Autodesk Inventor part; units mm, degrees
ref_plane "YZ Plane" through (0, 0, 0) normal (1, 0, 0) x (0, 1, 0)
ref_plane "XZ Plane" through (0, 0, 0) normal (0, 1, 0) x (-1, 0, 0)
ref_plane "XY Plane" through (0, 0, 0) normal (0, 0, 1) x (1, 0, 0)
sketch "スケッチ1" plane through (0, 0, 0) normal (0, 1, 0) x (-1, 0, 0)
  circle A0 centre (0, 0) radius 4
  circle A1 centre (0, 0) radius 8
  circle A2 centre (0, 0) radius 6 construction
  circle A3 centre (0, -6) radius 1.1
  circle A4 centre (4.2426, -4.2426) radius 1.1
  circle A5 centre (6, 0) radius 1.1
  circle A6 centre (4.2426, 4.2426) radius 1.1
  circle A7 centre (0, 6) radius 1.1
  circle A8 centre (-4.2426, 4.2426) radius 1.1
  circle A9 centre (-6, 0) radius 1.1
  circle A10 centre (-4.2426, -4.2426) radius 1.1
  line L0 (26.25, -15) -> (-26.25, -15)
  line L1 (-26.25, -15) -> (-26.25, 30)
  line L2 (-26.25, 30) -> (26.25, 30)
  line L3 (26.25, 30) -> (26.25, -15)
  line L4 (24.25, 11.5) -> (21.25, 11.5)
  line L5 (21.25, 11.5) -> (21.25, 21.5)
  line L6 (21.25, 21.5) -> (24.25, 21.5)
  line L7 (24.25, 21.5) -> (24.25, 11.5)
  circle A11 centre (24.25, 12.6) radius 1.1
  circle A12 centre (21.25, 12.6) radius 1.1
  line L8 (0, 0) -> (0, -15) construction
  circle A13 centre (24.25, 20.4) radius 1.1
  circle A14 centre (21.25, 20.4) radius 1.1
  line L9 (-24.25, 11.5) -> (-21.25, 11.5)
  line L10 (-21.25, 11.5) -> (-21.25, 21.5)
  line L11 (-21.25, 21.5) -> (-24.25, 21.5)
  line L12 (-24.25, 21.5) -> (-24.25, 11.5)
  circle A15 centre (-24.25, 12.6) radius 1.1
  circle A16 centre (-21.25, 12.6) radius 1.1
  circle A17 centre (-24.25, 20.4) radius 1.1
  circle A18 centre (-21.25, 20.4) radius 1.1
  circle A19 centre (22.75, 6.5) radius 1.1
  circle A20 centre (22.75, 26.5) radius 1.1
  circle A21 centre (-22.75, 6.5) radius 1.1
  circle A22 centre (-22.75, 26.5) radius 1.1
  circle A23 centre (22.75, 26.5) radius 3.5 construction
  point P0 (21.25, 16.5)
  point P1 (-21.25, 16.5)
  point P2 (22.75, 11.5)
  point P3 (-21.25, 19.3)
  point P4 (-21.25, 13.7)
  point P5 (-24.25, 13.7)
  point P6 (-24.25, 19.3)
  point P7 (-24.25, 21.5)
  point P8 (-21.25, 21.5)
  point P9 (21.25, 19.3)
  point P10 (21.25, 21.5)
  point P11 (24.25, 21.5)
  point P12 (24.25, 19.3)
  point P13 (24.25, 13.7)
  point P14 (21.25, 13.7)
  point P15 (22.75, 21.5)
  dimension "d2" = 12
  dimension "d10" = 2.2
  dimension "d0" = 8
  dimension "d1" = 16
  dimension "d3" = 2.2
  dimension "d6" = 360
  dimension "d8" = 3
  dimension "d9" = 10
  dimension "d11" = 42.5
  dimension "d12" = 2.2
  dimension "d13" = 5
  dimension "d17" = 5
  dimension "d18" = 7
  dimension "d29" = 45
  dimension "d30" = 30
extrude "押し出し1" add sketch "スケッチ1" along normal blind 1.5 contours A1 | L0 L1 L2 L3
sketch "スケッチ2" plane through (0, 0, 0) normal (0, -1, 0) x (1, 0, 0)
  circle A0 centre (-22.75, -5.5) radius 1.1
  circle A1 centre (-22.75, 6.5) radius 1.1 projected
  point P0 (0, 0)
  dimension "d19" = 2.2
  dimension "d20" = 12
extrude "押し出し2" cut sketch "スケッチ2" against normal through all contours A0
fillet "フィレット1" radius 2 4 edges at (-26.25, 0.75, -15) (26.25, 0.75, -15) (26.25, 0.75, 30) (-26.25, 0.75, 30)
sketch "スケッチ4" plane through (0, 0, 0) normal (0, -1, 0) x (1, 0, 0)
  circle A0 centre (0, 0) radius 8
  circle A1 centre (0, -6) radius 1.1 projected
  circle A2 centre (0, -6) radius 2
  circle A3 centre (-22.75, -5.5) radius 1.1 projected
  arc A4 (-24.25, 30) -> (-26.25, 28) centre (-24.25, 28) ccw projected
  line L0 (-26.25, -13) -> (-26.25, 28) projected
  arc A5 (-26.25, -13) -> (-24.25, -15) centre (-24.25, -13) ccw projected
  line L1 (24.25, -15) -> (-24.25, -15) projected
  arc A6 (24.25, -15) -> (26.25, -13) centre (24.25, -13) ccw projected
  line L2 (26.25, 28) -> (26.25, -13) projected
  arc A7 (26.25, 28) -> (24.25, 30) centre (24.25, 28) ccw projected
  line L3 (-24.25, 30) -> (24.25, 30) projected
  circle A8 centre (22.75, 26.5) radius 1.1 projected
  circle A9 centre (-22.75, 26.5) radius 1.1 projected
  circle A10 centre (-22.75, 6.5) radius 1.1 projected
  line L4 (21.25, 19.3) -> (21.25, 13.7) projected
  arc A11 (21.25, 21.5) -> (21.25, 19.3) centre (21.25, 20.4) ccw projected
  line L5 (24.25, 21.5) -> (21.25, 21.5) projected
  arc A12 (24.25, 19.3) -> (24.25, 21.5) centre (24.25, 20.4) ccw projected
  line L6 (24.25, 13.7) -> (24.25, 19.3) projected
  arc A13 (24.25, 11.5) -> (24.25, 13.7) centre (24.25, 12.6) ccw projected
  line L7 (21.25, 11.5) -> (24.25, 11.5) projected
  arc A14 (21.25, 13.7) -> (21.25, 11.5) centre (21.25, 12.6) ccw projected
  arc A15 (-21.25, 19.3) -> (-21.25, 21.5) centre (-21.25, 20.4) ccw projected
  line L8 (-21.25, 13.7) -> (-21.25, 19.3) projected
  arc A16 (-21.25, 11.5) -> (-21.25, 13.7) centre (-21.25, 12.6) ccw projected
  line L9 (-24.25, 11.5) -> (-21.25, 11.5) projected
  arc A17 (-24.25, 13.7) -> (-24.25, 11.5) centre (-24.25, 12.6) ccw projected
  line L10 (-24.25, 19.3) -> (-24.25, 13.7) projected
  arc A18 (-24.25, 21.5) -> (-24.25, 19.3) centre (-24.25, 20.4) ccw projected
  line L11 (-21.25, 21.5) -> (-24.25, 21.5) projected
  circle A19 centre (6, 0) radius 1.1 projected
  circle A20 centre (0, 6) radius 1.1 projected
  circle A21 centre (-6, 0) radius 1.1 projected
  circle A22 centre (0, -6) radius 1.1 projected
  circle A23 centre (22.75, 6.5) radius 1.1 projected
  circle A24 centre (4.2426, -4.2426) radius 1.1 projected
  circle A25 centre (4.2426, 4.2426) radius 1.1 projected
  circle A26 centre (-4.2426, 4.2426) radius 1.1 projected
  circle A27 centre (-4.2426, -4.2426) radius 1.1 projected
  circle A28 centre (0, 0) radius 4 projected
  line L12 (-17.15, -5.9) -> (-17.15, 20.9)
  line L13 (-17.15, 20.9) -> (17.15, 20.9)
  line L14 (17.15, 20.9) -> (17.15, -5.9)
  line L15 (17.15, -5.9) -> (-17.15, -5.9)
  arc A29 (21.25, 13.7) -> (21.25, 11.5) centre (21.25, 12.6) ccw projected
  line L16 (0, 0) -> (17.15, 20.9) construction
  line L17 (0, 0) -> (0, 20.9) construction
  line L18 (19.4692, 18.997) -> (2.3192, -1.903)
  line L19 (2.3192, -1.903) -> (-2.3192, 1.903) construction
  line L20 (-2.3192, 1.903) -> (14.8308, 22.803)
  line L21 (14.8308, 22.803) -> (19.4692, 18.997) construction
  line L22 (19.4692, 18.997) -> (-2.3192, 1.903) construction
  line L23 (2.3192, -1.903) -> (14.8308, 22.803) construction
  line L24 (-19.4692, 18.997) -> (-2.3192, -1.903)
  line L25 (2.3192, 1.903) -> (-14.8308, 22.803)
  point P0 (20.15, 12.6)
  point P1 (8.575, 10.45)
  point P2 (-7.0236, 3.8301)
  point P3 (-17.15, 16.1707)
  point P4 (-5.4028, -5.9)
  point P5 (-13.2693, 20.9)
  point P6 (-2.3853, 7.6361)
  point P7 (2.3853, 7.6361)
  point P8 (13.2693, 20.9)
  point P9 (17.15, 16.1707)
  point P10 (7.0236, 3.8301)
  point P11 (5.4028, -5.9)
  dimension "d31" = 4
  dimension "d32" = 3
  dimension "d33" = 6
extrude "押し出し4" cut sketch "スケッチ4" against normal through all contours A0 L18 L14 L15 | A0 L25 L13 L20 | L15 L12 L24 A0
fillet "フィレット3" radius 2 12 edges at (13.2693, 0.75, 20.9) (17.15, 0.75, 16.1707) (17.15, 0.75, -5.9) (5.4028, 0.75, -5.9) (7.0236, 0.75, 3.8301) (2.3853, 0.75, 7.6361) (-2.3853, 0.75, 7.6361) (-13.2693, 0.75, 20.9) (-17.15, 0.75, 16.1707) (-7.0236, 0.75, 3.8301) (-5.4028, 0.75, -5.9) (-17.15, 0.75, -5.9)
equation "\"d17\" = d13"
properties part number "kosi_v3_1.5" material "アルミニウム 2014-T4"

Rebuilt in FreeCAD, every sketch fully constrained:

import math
import FreeCAD as App
import Part
import Sketcher
from FreeCAD import Vector
Q = App.Units.Quantity


def edges_at(feature, points):
    """Names of the edges that pass closest to the given points."""
    edges = feature.Shape.Edges
    near = lambda p: min(range(len(edges)), key=lambda i: edges[i].distToShape(Part.Vertex(*p))[0])
    return sorted({f"Edge{near(p) + 1}" for p in points})


def add_polygon(sketch, points):
    """Adds a closed chain of lines whose ends are joined by coincident constraints."""
    first, n = sketch.GeometryCount, len(points)
    for a, b in zip(points, points[1:] + points[:1]):
        sketch.addGeometry(Part.LineSegment(App.Vector(*a, 0), App.Vector(*b, 0)), False)
    for i in range(n):
        sketch.addConstraint(Sketcher.Constraint("Coincident", first + i, 2, first + (i + 1) % n, 1))

doc = App.newDocument("Part")
body = doc.addObject("PartDesign::Body", "Body")

# Sketch on XZ plane
sketch1 = body.newObject("Sketcher::SketchObject", "Sketch")
sketch1.AttachmentSupport = (doc.getObject("XZ_Plane"), [""])
sketch1.MapMode = "FlatFace"
add_polygon(sketch1, [(26.2, -15), (-26.2, -15), (-26.2, 30), (26.2, 30)])  # lines 0-3
sketch1.addGeometry(Part.Circle(Vector(4.2, -4.2, 0), Vector(0, 0, 1), 1.1), False)  # 4
sketch1.addGeometry(Part.Circle(Vector(6, 0, 0), Vector(0, 0, 1), 1.1), False)  # 5
sketch1.addGeometry(Part.Circle(Vector(4.2, 4.2, 0), Vector(0, 0, 1), 1.1), False)  # 6
sketch1.addGeometry(Part.Circle(Vector(0, -6, 0), Vector(0, 0, 1), 1.1), False)  # 7
sketch1.addGeometry(Part.Circle(Vector(-4.2, -4.2, 0), Vector(0, 0, 1), 1.1), False)  # 8
sketch1.addGeometry(Part.Circle(Vector(0, 0, 0), Vector(0, 0, 1), 4), False)  # 9
sketch1.addGeometry(Part.Circle(Vector(-6, 0, 0), Vector(0, 0, 1), 1.1), False)  # 10
sketch1.addGeometry(Part.Circle(Vector(-4.2, 4.2, 0), Vector(0, 0, 1), 1.1), False)  # 11
sketch1.addGeometry(Part.Circle(Vector(0, 6, 0), Vector(0, 0, 1), 1.1), False)  # 12
sketch1.addGeometry(Part.Circle(Vector(22.8, 6.5, 0), Vector(0, 0, 1), 1.1), False)  # 13
sketch1.addGeometry(Part.Circle(Vector(-22.8, 26.5, 0), Vector(0, 0, 1), 1.1), False)  # 14
sketch1.addGeometry(Part.Circle(Vector(-22.8, 6.5, 0), Vector(0, 0, 1), 1.1), False)  # 15
sketch1.addGeometry(Part.LineSegment(Vector(21.2, 11.5, 0), Vector(24.2, 11.5, 0)), False)  # 16
sketch1.addGeometry(Part.ArcOfCircle(Part.Circle(Vector(24.2, 12.6, 0), Vector(0, 0, 1), 1.1), math.radians(-90), math.radians(90)), False)  # 17
sketch1.addGeometry(Part.LineSegment(Vector(24.2, 13.7, 0), Vector(24.2, 19.3, 0)), False)  # 18
sketch1.addGeometry(Part.ArcOfCircle(Part.Circle(Vector(24.2, 20.4, 0), Vector(0, 0, 1), 1.1), math.radians(-90), math.radians(90)), False)  # 19
sketch1.addGeometry(Part.LineSegment(Vector(24.2, 21.5, 0), Vector(21.2, 21.5, 0)), False)  # 20
sketch1.addGeometry(Part.ArcOfCircle(Part.Circle(Vector(21.2, 20.4, 0), Vector(0, 0, 1), 1.1), math.radians(90), math.radians(270)), False)  # 21
sketch1.addGeometry(Part.LineSegment(Vector(21.2, 19.3, 0), Vector(21.2, 13.7, 0)), False)  # 22
sketch1.addGeometry(Part.ArcOfCircle(Part.Circle(Vector(21.2, 12.6, 0), Vector(0, 0, 1), 1.1), math.radians(90), math.radians(270)), False)  # 23
sketch1.addGeometry(Part.Circle(Vector(22.8, 26.5, 0), Vector(0, 0, 1), 1.1), False)  # 24
sketch1.addGeometry(Part.LineSegment(Vector(-24.2, 11.5, 0), Vector(-21.2, 11.5, 0)), False)  # 25
sketch1.addGeometry(Part.ArcOfCircle(Part.Circle(Vector(-21.2, 12.6, 0), Vector(0, 0, 1), 1.1), math.radians(-90), math.radians(90)), False)  # 26
sketch1.addGeometry(Part.LineSegment(Vector(-21.2, 13.7, 0), Vector(-21.2, 19.3, 0)), False)  # 27
sketch1.addGeometry(Part.ArcOfCircle(Part.Circle(Vector(-21.2, 20.4, 0), Vector(0, 0, 1), 1.1), math.radians(-90), math.radians(90)), False)  # 28
sketch1.addGeometry(Part.LineSegment(Vector(-21.2, 21.5, 0), Vector(-24.2, 21.5, 0)), False)  # 29
sketch1.addGeometry(Part.ArcOfCircle(Part.Circle(Vector(-24.2, 20.4, 0), Vector(0, 0, 1), 1.1), math.radians(90), math.radians(270)), False)  # 30
sketch1.addGeometry(Part.LineSegment(Vector(-24.2, 19.3, 0), Vector(-24.2, 13.7, 0)), False)  # 31
sketch1.addGeometry(Part.ArcOfCircle(Part.Circle(Vector(-24.2, 12.6, 0), Vector(0, 0, 1), 1.1), math.radians(90), math.radians(270)), False)  # 32
sketch1.addConstraint(Sketcher.Constraint("Tangent", 16, 2, 17, 1))
sketch1.addConstraint(Sketcher.Constraint("Coincident", 17, 2, 18, 1))
sketch1.addConstraint(Sketcher.Constraint("Coincident", 18, 2, 19, 1))
sketch1.addConstraint(Sketcher.Constraint("Tangent", 19, 2, 20, 1))
sketch1.addConstraint(Sketcher.Constraint("Tangent", 20, 2, 21, 1))
sketch1.addConstraint(Sketcher.Constraint("Coincident", 21, 2, 22, 1))
sketch1.addConstraint(Sketcher.Constraint("Coincident", 22, 2, 23, 1))
sketch1.addConstraint(Sketcher.Constraint("Tangent", 23, 2, 16, 1))
sketch1.addConstraint(Sketcher.Constraint("Tangent", 25, 2, 26, 1))
sketch1.addConstraint(Sketcher.Constraint("Coincident", 26, 2, 27, 1))
sketch1.addConstraint(Sketcher.Constraint("Coincident", 27, 2, 28, 1))
sketch1.addConstraint(Sketcher.Constraint("Tangent", 28, 2, 29, 1))
sketch1.addConstraint(Sketcher.Constraint("Tangent", 29, 2, 30, 1))
sketch1.addConstraint(Sketcher.Constraint("Coincident", 30, 2, 31, 1))
sketch1.addConstraint(Sketcher.Constraint("Coincident", 31, 2, 32, 1))
sketch1.addConstraint(Sketcher.Constraint("Tangent", 32, 2, 25, 1))
sketch1.addConstraint(Sketcher.Constraint("Horizontal", 0))
sketch1.addConstraint(Sketcher.Constraint("Vertical", 1))
sketch1.addConstraint(Sketcher.Constraint("Horizontal", 2))
sketch1.addConstraint(Sketcher.Constraint("Vertical", 3))
sketch1.addConstraint(Sketcher.Constraint("Horizontal", 16))
sketch1.addConstraint(Sketcher.Constraint("Vertical", 18))
sketch1.addConstraint(Sketcher.Constraint("Horizontal", 20))
sketch1.addConstraint(Sketcher.Constraint("Vertical", 22))
sketch1.addConstraint(Sketcher.Constraint("Horizontal", 25))
sketch1.addConstraint(Sketcher.Constraint("Vertical", 27))
sketch1.addConstraint(Sketcher.Constraint("Horizontal", 29))
sketch1.addConstraint(Sketcher.Constraint("Vertical", 31))
sketch1.addConstraint(Sketcher.Constraint("Coincident", 9, 3, -1, 1))
sketch1.addConstraint(Sketcher.Constraint("Equal", 4, 5))
sketch1.addConstraint(Sketcher.Constraint("Equal", 5, 6))
sketch1.addConstraint(Sketcher.Constraint("Equal", 6, 7))
sketch1.addConstraint(Sketcher.Constraint("Equal", 7, 8))
sketch1.addConstraint(Sketcher.Constraint("Equal", 8, 10))
sketch1.addConstraint(Sketcher.Constraint("Equal", 10, 11))
sketch1.addConstraint(Sketcher.Constraint("Equal", 11, 12))
sketch1.addConstraint(Sketcher.Constraint("Equal", 12, 13))
sketch1.addConstraint(Sketcher.Constraint("Equal", 13, 14))
sketch1.addConstraint(Sketcher.Constraint("Equal", 14, 15))
sketch1.addConstraint(Sketcher.Constraint("Equal", 15, 17))
sketch1.addConstraint(Sketcher.Constraint("Equal", 17, 19))
sketch1.addConstraint(Sketcher.Constraint("Equal", 19, 21))
sketch1.addConstraint(Sketcher.Constraint("Equal", 21, 23))
sketch1.addConstraint(Sketcher.Constraint("Equal", 23, 24))
sketch1.addConstraint(Sketcher.Constraint("Equal", 24, 26))
sketch1.addConstraint(Sketcher.Constraint("Equal", 26, 28))
sketch1.addConstraint(Sketcher.Constraint("Equal", 28, 30))
sketch1.addConstraint(Sketcher.Constraint("Equal", 30, 32))
sketch1.addConstraint(Sketcher.Constraint("Symmetric", 6, 3, 8, 3, -1, 1))
sketch1.addConstraint(Sketcher.Constraint("Symmetric", 5, 3, 10, 3, -1, 1))
sketch1.addConstraint(Sketcher.Constraint("Symmetric", 4, 3, 11, 3, -1, 1))
sketch1.addConstraint(Sketcher.Constraint("Symmetric", 7, 3, 12, 3, -1, 1))
sketch1.addConstraint(Sketcher.Constraint("Symmetric", 4, 3, 8, 3, -2))
sketch1.addConstraint(Sketcher.Constraint("Symmetric", 13, 3, 15, 3, -2))
sketch1.addConstraint(Sketcher.Constraint("Symmetric", 14, 3, 24, 3, -2))
sketch1.addConstraint(Sketcher.Constraint("Symmetric", 23, 3, 26, 3, -2))
sketch1.addConstraint(Sketcher.Constraint("Symmetric", 21, 3, 28, 3, -2))
sketch1.addConstraint(Sketcher.Constraint("PointOnObject", 5, 3, -1))
sketch1.addConstraint(Sketcher.Constraint("PointOnObject", 7, 3, -2))
sketch1.addConstraint(Sketcher.Constraint("Vertical", 14, 3, 15, 3))
sketch1.addConstraint(Sketcher.Constraint("Vertical", 17, 3, 19, 3))
sketch1.addConstraint(Sketcher.Constraint("Vertical", 21, 3, 23, 3))
sketch1.addConstraint(Sketcher.Constraint("Vertical", 30, 3, 32, 3))
sketch1.addConstraint(Sketcher.Constraint("Vertical", 16, 2, 17, 2))
sketch1.addConstraint(Sketcher.Constraint("Vertical", 20, 2, 21, 2))
sketch1.addConstraint(Sketcher.Constraint("Vertical", 25, 2, 26, 2))
sketch1.addConstraint(Sketcher.Constraint("Vertical", 29, 2, 30, 2))
sketch1.addConstraint(Sketcher.Constraint("Equal", 20, 25))
sketch1.addConstraint(Sketcher.Constraint("Diameter", 9, Q("8 mm")))
sketch1.addConstraint(Sketcher.Constraint("Diameter", 4, Q("2.2 mm")))
sketch1.addConstraint(Sketcher.Constraint("DistanceX", 16, 1, 16, 2, Q("3 mm")))
sketch1.addConstraint(Sketcher.Constraint("DistanceY", 1, 1, 1, 2, Q("45 mm")))
sketch1.addConstraint(Sketcher.Constraint("DistanceY", -1, 1, 1, 2, Q("30 mm")))
sketch1.addConstraint(Sketcher.Constraint("DistanceX", 1, 2, 28, 3, Q("5 mm")))
sketch1.addConstraint(Sketcher.Constraint("DistanceX", 21, 3, 2, 2, Q("5 mm")))
sketch1.addConstraint(Sketcher.Constraint("DistanceY", 13, 3, 16, 2, Q("5 mm")))
sketch1.addConstraint(Sketcher.Constraint("DistanceY", 19, 2, 24, 3, Q("5 mm")))
sketch1.addConstraint(Sketcher.Constraint("DistanceX", 0, 2, 0, 1, Q("52.5 mm")))
sketch1.addConstraint(Sketcher.Constraint("DistanceY", 18, 1, 18, 2, Q("5.6 mm")))
sketch1.addConstraint(Sketcher.Constraint("DistanceX", -1, 1, 5, 3, Q("6 mm")))
sketch1.addConstraint(Sketcher.Constraint("DistanceY", 7, 3, -1, 1, Q("6 mm")))
sketch1.addConstraint(Sketcher.Constraint("DistanceY", -1, 1, 13, 3, Q("6.5 mm")))
sketch1.addConstraint(Sketcher.Constraint("DistanceX", 13, 3, 17, 3, Q("1.5 mm")))
sketch1.addConstraint(Sketcher.Constraint("DistanceX", -1, 1, 4, 3, Q("4.2426 mm")))
sketch1.addConstraint(Sketcher.Constraint("DistanceY", 4, 3, -1, 1, Q("4.2426 mm")))
pad1 = body.newObject("PartDesign::Pad", "Pad")
pad1.Profile = sketch1
pad1.Length = 1.5
pad1.Reversed = True

# Sketch on XZ plane
sketch2 = body.newObject("Sketcher::SketchObject", "Sketch001")
sketch2.AttachmentSupport = (doc.getObject("XZ_Plane"), [""])
sketch2.MapMode = "FlatFace"
sketch2.addGeometry(Part.Circle(Vector(-22.8, -5.5, 0), Vector(0, 0, 1), 1.1), False)
sketch2.addConstraint(Sketcher.Constraint("Diameter", 0, Q("2.2 mm")))
sketch2.addConstraint(Sketcher.Constraint("DistanceY", 0, 3, -1, 1, Q("5.5 mm")))
sketch2.addConstraint(Sketcher.Constraint("DistanceX", 0, 3, -1, 1, Q("22.75 mm")))
pocket1 = body.newObject("PartDesign::Pocket", "Pocket")
pocket1.Profile = sketch2
pocket1.Type = "ThroughAll"
doc.recompute()

fillet = body.newObject("PartDesign::Fillet", "Fillet")
fillet.Base = (pocket1, edges_at(pocket1, [
    (-26.25, 0.75, -15),
    (26.25, 0.75, -15),
    (26.25, 0.75, 30),
    (-26.25, 0.75, 30),
]))
fillet.Radius = 2

# Sketch on XZ plane
sketch3 = body.newObject("Sketcher::SketchObject", "Sketch002")
sketch3.AttachmentSupport = (doc.getObject("XZ_Plane"), [""])
sketch3.MapMode = "FlatFace"
sketch3.addGeometry(Part.ArcOfCircle(Part.Circle(Vector(0, 0, 0), Vector(0, 0, 1), 8), math.radians(-48), math.radians(29)), False)
sketch3.addGeometry(Part.LineSegment(Vector(5.4, -5.9, 0), Vector(17.1, -5.9, 0)), False)
sketch3.addGeometry(Part.LineSegment(Vector(17.1, -5.9, 0), Vector(17.1, 16.2, 0)), False)
sketch3.addGeometry(Part.LineSegment(Vector(17.1, 16.2, 0), Vector(7, 3.8, 0)), False)
sketch3.addGeometry(Part.ArcOfCircle(Part.Circle(Vector(0, 0, 0), Vector(0, 0, 1), 8), math.radians(73), math.radians(107)), False)
sketch3.addGeometry(Part.LineSegment(Vector(2.4, 7.6, 0), Vector(13.3, 20.9, 0)), False)
sketch3.addGeometry(Part.LineSegment(Vector(13.3, 20.9, 0), Vector(-13.3, 20.9, 0)), False)
sketch3.addGeometry(Part.LineSegment(Vector(-13.3, 20.9, 0), Vector(-2.4, 7.6, 0)), False)
sketch3.addGeometry(Part.LineSegment(Vector(-17.1, -5.9, 0), Vector(-5.4, -5.9, 0)), False)
sketch3.addGeometry(Part.ArcOfCircle(Part.Circle(Vector(0, 0, 0), Vector(0, 0, 1), 8), math.radians(151), math.radians(228)), False)
sketch3.addGeometry(Part.LineSegment(Vector(-7, 3.8, 0), Vector(-17.1, 16.2, 0)), False)
sketch3.addGeometry(Part.LineSegment(Vector(-17.1, 16.2, 0), Vector(-17.1, -5.9, 0)), False)
sketch3.addConstraint(Sketcher.Constraint("Coincident", 0, 1, 1, 1))
sketch3.addConstraint(Sketcher.Constraint("Coincident", 1, 2, 2, 1))
sketch3.addConstraint(Sketcher.Constraint("Coincident", 2, 2, 3, 1))
sketch3.addConstraint(Sketcher.Constraint("Coincident", 3, 2, 0, 2))
sketch3.addConstraint(Sketcher.Constraint("Coincident", 4, 1, 5, 1))
sketch3.addConstraint(Sketcher.Constraint("Coincident", 5, 2, 6, 1))
sketch3.addConstraint(Sketcher.Constraint("Coincident", 6, 2, 7, 1))
sketch3.addConstraint(Sketcher.Constraint("Coincident", 7, 2, 4, 2))
sketch3.addConstraint(Sketcher.Constraint("Coincident", 8, 2, 9, 2))
sketch3.addConstraint(Sketcher.Constraint("Coincident", 9, 1, 10, 1))
sketch3.addConstraint(Sketcher.Constraint("Coincident", 10, 2, 11, 1))
sketch3.addConstraint(Sketcher.Constraint("Coincident", 11, 2, 8, 1))
sketch3.addConstraint(Sketcher.Constraint("Horizontal", 1))
sketch3.addConstraint(Sketcher.Constraint("Vertical", 2))
sketch3.addConstraint(Sketcher.Constraint("Horizontal", 6))
sketch3.addConstraint(Sketcher.Constraint("Horizontal", 8))
sketch3.addConstraint(Sketcher.Constraint("Vertical", 11))
sketch3.addConstraint(Sketcher.Constraint("Coincident", 0, 3, -1, 1))
sketch3.addConstraint(Sketcher.Constraint("Coincident", 4, 3, -1, 1))
sketch3.addConstraint(Sketcher.Constraint("Coincident", 9, 3, -1, 1))
sketch3.addConstraint(Sketcher.Constraint("Equal", 0, 4))
sketch3.addConstraint(Sketcher.Constraint("Equal", 4, 9))
sketch3.addConstraint(Sketcher.Constraint("Symmetric", 2, 2, 10, 2, -2))
sketch3.addConstraint(Sketcher.Constraint("Parallel", 3, 5))
sketch3.addConstraint(Sketcher.Constraint("Parallel", 7, 10))
sketch3.addConstraint(Sketcher.Constraint("Horizontal", 4, 1, 7, 2))
sketch3.addConstraint(Sketcher.Constraint("Horizontal", 1, 2, 8, 2))
sketch3.addConstraint(Sketcher.Constraint("Horizontal", 3, 2, 9, 1))
sketch3.addConstraint(Sketcher.Constraint("Radius", 0, Q("8 mm")))
sketch3.addConstraint(Sketcher.Constraint("DistanceY", 0, 1, -1, 1, Q("5.9 mm")))
sketch3.addConstraint(Sketcher.Constraint("DistanceY", -1, 1, 5, 2, Q("20.9 mm")))
sketch3.addConstraint(Sketcher.Constraint("DistanceX", -1, 1, 1, 2, Q("17.15 mm")))
sketch3.addConstraint(Sketcher.Constraint("DistanceY", -1, 1, 3, 2, Q("3.83 mm")))
sketch3.addConstraint(Sketcher.Constraint("DistanceX", 6, 2, 6, 1, Q("26.5385 mm")))
sketch3.addConstraint(Sketcher.Constraint("DistanceY", 2, 1, 2, 2, Q("22.0707 mm")))
pocket2 = body.newObject("PartDesign::Pocket", "Pocket001")
pocket2.Profile = sketch3
pocket2.Type = "ThroughAll"
doc.recompute()

fillet2 = body.newObject("PartDesign::Fillet", "Fillet001")
fillet2.Base = (pocket2, edges_at(pocket2, [
    (13.269, 0.75, 20.9),
    (17.15, 0.75, 16.171),
    (17.15, 0.75, -5.9),
    (5.403, 0.75, -5.9),
    (7.024, 0.75, 3.83),
    (2.385, 0.75, 7.636),
    (-2.385, 0.75, 7.636),
    (-13.269, 0.75, 20.9),
    (-17.15, 0.75, 16.171),
    (-7.024, 0.75, 3.83),
    (-5.403, 0.75, -5.9),
    (-17.15, 0.75, -5.9),
]))
fillet2.Radius = 2

doc.recompute()
